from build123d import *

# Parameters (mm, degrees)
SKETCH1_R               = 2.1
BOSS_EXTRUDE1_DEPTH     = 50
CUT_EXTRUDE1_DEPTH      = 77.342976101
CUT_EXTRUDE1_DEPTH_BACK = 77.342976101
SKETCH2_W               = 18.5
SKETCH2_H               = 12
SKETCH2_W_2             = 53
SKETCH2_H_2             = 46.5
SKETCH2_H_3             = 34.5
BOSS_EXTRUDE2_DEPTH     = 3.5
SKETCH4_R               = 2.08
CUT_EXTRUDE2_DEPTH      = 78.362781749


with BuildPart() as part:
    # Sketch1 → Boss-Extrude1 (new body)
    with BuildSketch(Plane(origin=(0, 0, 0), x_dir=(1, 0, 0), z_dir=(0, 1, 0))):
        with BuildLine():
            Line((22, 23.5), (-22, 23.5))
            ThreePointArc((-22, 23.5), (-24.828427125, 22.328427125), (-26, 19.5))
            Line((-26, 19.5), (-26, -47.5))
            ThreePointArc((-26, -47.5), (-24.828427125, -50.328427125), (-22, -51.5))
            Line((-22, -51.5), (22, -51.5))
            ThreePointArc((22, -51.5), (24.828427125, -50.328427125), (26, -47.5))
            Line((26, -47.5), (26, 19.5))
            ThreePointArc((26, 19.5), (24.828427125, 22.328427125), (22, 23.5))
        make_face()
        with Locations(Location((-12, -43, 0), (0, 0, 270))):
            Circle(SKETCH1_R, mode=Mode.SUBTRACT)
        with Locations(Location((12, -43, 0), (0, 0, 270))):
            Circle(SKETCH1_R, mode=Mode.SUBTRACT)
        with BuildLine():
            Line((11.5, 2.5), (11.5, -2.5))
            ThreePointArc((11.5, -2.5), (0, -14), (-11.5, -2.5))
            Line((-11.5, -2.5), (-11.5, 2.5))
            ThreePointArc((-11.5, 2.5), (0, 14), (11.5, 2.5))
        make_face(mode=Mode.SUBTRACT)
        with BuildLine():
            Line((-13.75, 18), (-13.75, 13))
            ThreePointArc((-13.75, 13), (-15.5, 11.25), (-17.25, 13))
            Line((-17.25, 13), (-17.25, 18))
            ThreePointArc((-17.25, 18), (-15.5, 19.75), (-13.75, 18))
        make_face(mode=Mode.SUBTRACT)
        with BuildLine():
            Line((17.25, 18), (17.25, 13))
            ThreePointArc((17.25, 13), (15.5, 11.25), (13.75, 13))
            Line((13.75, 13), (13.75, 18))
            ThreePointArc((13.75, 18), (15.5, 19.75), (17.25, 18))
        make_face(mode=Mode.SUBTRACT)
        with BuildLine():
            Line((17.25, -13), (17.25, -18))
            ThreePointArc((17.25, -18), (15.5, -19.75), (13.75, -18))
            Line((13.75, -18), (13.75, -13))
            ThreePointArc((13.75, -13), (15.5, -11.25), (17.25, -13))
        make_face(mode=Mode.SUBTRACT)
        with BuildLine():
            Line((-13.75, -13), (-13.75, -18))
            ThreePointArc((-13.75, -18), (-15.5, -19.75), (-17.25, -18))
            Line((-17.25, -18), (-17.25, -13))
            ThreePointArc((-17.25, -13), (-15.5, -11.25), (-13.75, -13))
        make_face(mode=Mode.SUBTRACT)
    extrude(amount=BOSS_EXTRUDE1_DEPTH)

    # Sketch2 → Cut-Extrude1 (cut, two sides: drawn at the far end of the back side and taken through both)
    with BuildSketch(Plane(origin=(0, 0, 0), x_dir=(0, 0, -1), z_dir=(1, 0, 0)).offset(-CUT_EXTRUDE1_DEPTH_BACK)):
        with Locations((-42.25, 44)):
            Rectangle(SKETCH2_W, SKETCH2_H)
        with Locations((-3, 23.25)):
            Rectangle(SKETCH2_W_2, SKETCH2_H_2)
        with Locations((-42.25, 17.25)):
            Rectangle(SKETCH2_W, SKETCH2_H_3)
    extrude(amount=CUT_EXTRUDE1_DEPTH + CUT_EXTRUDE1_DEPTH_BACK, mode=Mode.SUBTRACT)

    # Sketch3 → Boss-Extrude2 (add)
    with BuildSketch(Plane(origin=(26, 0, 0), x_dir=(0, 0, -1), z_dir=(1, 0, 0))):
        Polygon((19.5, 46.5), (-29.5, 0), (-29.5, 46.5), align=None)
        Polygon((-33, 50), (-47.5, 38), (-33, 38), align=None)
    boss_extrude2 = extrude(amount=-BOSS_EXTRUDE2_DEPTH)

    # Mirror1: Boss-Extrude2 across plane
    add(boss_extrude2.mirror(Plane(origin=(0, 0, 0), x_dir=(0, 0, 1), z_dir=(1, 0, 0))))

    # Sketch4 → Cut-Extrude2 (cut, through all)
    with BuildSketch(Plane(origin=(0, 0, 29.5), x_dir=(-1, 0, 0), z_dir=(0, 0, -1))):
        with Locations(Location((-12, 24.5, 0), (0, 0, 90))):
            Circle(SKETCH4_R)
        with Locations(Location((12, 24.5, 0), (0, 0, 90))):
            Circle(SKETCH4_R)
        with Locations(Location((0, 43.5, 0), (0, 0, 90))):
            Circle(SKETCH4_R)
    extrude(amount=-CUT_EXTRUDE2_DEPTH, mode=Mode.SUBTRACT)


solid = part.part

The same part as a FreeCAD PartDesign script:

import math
import FreeCAD as App
import Part
import Sketcher
from FreeCAD import Vector
Q = App.Units.Quantity


def add_polygon(sketch, points):
    """Adds a closed chain of lines whose ends are joined by coincident constraints."""
    first, n = sketch.GeometryCount, len(points)
    for a, b in zip(points, points[1:] + points[:1]):
        sketch.addGeometry(Part.LineSegment(App.Vector(*a, 0), App.Vector(*b, 0)), False)
    for i in range(n):
        sketch.addConstraint(Sketcher.Constraint("Coincident", first + i, 2, first + (i + 1) % n, 1))

doc = App.newDocument("Part")
body = doc.addObject("PartDesign::Body", "Body")

sketch1 = body.newObject("Sketcher::SketchObject", "Sketch")
sketch1.AttachmentSupport = (doc.getObject("XZ_Plane"), [""])
sketch1.MapMode = "FlatFace"
sketch1.addGeometry([
    Part.LineSegment(Vector(22, -23.5, 0), Vector(-22, -23.5, 0)),
    Part.ArcOfCircle(Part.Circle(Vector(-22, -19.5, 0), Vector(0, 0, 1), 4), math.radians(180), math.radians(270)),
    Part.LineSegment(Vector(-26, -19.5, 0), Vector(-26, 47.5, 0)),
    Part.ArcOfCircle(Part.Circle(Vector(-22, 47.5, 0), Vector(0, 0, 1), 4), math.radians(90), math.radians(180)),
    Part.LineSegment(Vector(-22, 51.5, 0), Vector(22, 51.5, 0)),
    Part.ArcOfCircle(Part.Circle(Vector(22, 47.5, 0), Vector(0, 0, 1), 4), math.radians(0), math.radians(90)),
    Part.LineSegment(Vector(26, 47.5, 0), Vector(26, -19.5, 0)),
    Part.ArcOfCircle(Part.Circle(Vector(22, -19.5, 0), Vector(0, 0, 1), 4), math.radians(-90), math.radians(0)),
    Part.Circle(Vector(-12, 43, 0), Vector(0, 0, 1), 2.1),
    Part.ArcOfCircle(Part.Circle(Vector(-15.5, 13, 0), Vector(0, 0, 1), 1.75), math.radians(180), math.radians(360)),
    Part.LineSegment(Vector(-13.75, 13, 0), Vector(-13.75, 18, 0)),
    Part.ArcOfCircle(Part.Circle(Vector(-15.5, 18, 0), Vector(0, 0, 1), 1.75), math.radians(0), math.radians(180)),
    Part.LineSegment(Vector(-17.25, 18, 0), Vector(-17.25, 13, 0)),
    Part.Circle(Vector(12, 43, 0), Vector(0, 0, 1), 2.1),
    Part.ArcOfCircle(Part.Circle(Vector(15.5, 13, 0), Vector(0, 0, 1), 1.75), math.radians(180), math.radians(360)),
    Part.LineSegment(Vector(17.25, 13, 0), Vector(17.25, 18, 0)),
    Part.ArcOfCircle(Part.Circle(Vector(15.5, 18, 0), Vector(0, 0, 1), 1.75), math.radians(0), math.radians(180)),
    Part.LineSegment(Vector(13.75, 18, 0), Vector(13.75, 13, 0)),
    Part.ArcOfCircle(Part.Circle(Vector(-15.5, -18, 0), Vector(0, 0, 1), 1.75), math.radians(180), math.radians(360)),
    Part.LineSegment(Vector(-13.75, -18, 0), Vector(-13.75, -13, 0)),
    Part.ArcOfCircle(Part.Circle(Vector(-15.5, -13, 0), Vector(0, 0, 1), 1.75), math.radians(0), math.radians(180)),
    Part.LineSegment(Vector(-17.25, -13, 0), Vector(-17.25, -18, 0)),
    Part.ArcOfCircle(Part.Circle(Vector(0, -2.5, 0), Vector(0, 0, 1), 11.5), math.radians(180), math.radians(360)),
    Part.LineSegment(Vector(11.5, -2.5, 0), Vector(11.5, 2.5, 0)),
    Part.ArcOfCircle(Part.Circle(Vector(0, 2.5, 0), Vector(0, 0, 1), 11.5), math.radians(0), math.radians(180)),
    Part.LineSegment(Vector(-11.5, 2.5, 0), Vector(-11.5, -2.5, 0)),
    Part.ArcOfCircle(Part.Circle(Vector(15.5, -18, 0), Vector(0, 0, 1), 1.75), math.radians(180), math.radians(360)),
    Part.LineSegment(Vector(17.25, -18, 0), Vector(17.25, -13, 0)),
    Part.ArcOfCircle(Part.Circle(Vector(15.5, -13, 0), Vector(0, 0, 1), 1.75), math.radians(0), math.radians(180)),
    Part.LineSegment(Vector(13.75, -13, 0), Vector(13.75, -18, 0)),
], False)
sketch1.addConstraint([
    Sketcher.Constraint("Tangent", 0, 2, 1, 2),
    Sketcher.Constraint("Tangent", 1, 1, 2, 1),
    Sketcher.Constraint("Tangent", 2, 2, 3, 2),
    Sketcher.Constraint("Tangent", 3, 1, 4, 1),
    Sketcher.Constraint("Tangent", 4, 2, 5, 2),
    Sketcher.Constraint("Tangent", 5, 1, 6, 1),
    Sketcher.Constraint("Tangent", 6, 2, 7, 2),
    Sketcher.Constraint("Tangent", 7, 1, 0, 1),
    Sketcher.Constraint("Tangent", 9, 2, 10, 1),
    Sketcher.Constraint("Tangent", 10, 2, 11, 1),
    Sketcher.Constraint("Tangent", 11, 2, 12, 1),
    Sketcher.Constraint("Tangent", 12, 2, 9, 1),
    Sketcher.Constraint("Tangent", 14, 2, 15, 1),
    Sketcher.Constraint("Tangent", 15, 2, 16, 1),
    Sketcher.Constraint("Tangent", 16, 2, 17, 1),
    Sketcher.Constraint("Tangent", 17, 2, 14, 1),
    Sketcher.Constraint("Tangent", 18, 2, 19, 1),
    Sketcher.Constraint("Tangent", 19, 2, 20, 1),
    Sketcher.Constraint("Tangent", 20, 2, 21, 1),
    Sketcher.Constraint("Tangent", 21, 2, 18, 1),
    Sketcher.Constraint("Tangent", 22, 2, 23, 1),
    Sketcher.Constraint("Tangent", 23, 2, 24, 1),
    Sketcher.Constraint("Tangent", 24, 2, 25, 1),
    Sketcher.Constraint("Tangent", 25, 2, 22, 1),
    Sketcher.Constraint("Tangent", 26, 2, 27, 1),
    Sketcher.Constraint("Tangent", 27, 2, 28, 1),
    Sketcher.Constraint("Tangent", 28, 2, 29, 1),
    Sketcher.Constraint("Tangent", 29, 2, 26, 1),
    Sketcher.Constraint("Horizontal", 0),
    Sketcher.Constraint("Vertical", 2),
    Sketcher.Constraint("Horizontal", 4),
    Sketcher.Constraint("Vertical", 6),
    Sketcher.Constraint("Vertical", 10),
    Sketcher.Constraint("Vertical", 12),
    Sketcher.Constraint("Vertical", 15),
    Sketcher.Constraint("Vertical", 17),
    Sketcher.Constraint("Vertical", 19),
    Sketcher.Constraint("Vertical", 21),
    Sketcher.Constraint("Vertical", 23),
    Sketcher.Constraint("Vertical", 25),
    Sketcher.Constraint("Vertical", 27),
    Sketcher.Constraint("Vertical", 29),
    Sketcher.Constraint("Equal", 1, 3),
    Sketcher.Constraint("Equal", 3, 5),
    Sketcher.Constraint("Equal", 5, 7),
    Sketcher.Constraint("Equal", 8, 13),
    Sketcher.Constraint("Equal", 11, 14),
    Sketcher.Constraint("Equal", 16, 18),
    Sketcher.Constraint("Equal", 20, 26),
    Sketcher.Constraint("Symmetric", 16, 3, 18, 3, -1, 1),
    Sketcher.Constraint("Symmetric", 22, 3, 24, 3, -1, 1),
    Sketcher.Constraint("Symmetric", 11, 3, 26, 3, -1, 1),
    Sketcher.Constraint("Symmetric", 8, 3, 13, 3, -2),
    Sketcher.Constraint("Symmetric", 9, 3, 14, 3, -2),
    Sketcher.Constraint("Horizontal", 11, 3, 16, 3),
    Sketcher.Constraint("Horizontal", 20, 3, 28, 3),
    Sketcher.Constraint("Equal", 17, 19),
    Sketcher.Constraint("Equal", 21, 23),
    Sketcher.Constraint("Radius", 1, Q("4 mm")),
    Sketcher.Constraint("Diameter", 8, Q("4.2 mm")),
    Sketcher.Constraint("Radius", 22, Q("11.5 mm")),
    Sketcher.Constraint("DistanceX", 0, 2, 0, 1, Q("44 mm")),
    Sketcher.Constraint("DistanceY", 2, 1, 2, 2, Q("67 mm")),
    Sketcher.Constraint("DistanceY", 10, 1, 10, 2, Q("5 mm")),
    Sketcher.Constraint("Radius", 9, Q("1.75 mm")),
    Sketcher.Constraint("DistanceX", 1, 3, -1, 1, Q("22 mm")),
    Sketcher.Constraint("DistanceX", 8, 3, -1, 1, Q("12 mm")),
    Sketcher.Constraint("DistanceY", -1, 1, 8, 3, Q("43 mm")),
    Sketcher.Constraint("DistanceY", -1, 1, 9, 3, Q("13 mm")),
    Sketcher.Constraint("DistanceX", 9, 3, 14, 3, Q("31 mm")),
    Sketcher.Constraint("DistanceY", 0, 2, 22, 3, Q("21 mm")),
])
pad1 = body.newObject("PartDesign::Pad", "Pad")
pad1.Profile = sketch1
pad1.Length = 50
pad1.Reversed = True

sketch2 = body.newObject("Sketcher::SketchObject", "Sketch001")
sketch2.AttachmentSupport = (doc.getObject("YZ_Plane"), [""])
sketch2.MapMode = "FlatFace"
add_polygon(sketch2, [(50, 51.5), (38, 51.5), (38, 33), (50, 33)])
add_polygon(sketch2, [(46.5, 29.5), (0, 29.5), (0, -23.5), (46.5, -23.5)])
add_polygon(sketch2, [(34.5, 51.5), (0, 51.5), (0, 33), (34.5, 33)])
sketch2.addConstraint([
    Sketcher.Constraint("Horizontal", 0),
    Sketcher.Constraint("Vertical", 1),
    Sketcher.Constraint("Horizontal", 2),
    Sketcher.Constraint("Vertical", 3),
    Sketcher.Constraint("Horizontal", 4),
    Sketcher.Constraint("Vertical", 5),
    Sketcher.Constraint("Horizontal", 6),
    Sketcher.Constraint("Vertical", 7),
    Sketcher.Constraint("Horizontal", 8),
    Sketcher.Constraint("Vertical", 9),
    Sketcher.Constraint("Horizontal", 10),
    Sketcher.Constraint("Vertical", 11),
    Sketcher.Constraint("PointOnObject", 4, 2, -2),
    Sketcher.Constraint("PointOnObject", 8, 2, -2),
    Sketcher.Constraint("Horizontal", 3, 2, 8, 2),
    Sketcher.Constraint("Horizontal", 2, 2, 9, 2),
    Sketcher.Constraint("DistanceX", 0, 2, 0, 1, Q("12 mm")),
    Sketcher.Constraint("DistanceY", 5, 2, 5, 1, Q("53 mm")),
    Sketcher.Constraint("DistanceX", 4, 2, 4, 1, Q("46.5 mm")),
    Sketcher.Constraint("DistanceX", 8, 2, 8, 1, Q("34.5 mm")),
    Sketcher.Constraint("DistanceY", 1, 2, 1, 1, Q("18.5 mm")),
    Sketcher.Constraint("DistanceX", -1, 1, 0, 2, Q("38 mm")),
    Sketcher.Constraint("DistanceY", -1, 1, 1, 2, Q("33 mm")),
    Sketcher.Constraint("DistanceY", 4, 2, 0, 2, Q("22 mm")),
])
pocket1 = body.newObject("PartDesign::Pocket", "Pocket")
pocket1.Profile = sketch2
pocket1.Type = "ThroughAll"
pocket1.Midplane = True

sketch3 = body.newObject("Sketcher::SketchObject", "Sketch002")
sketch3.AttachmentSupport = (doc.getObject("YZ_Plane"), [""])
sketch3.MapMode = "FlatFace"
sketch3.AttachmentOffset = App.Placement(Vector(0, 0, 26), App.Rotation())
add_polygon(sketch3, [(0, 29.5), (46.5, -19.5), (46.5, 29.5)])
add_polygon(sketch3, [(50, 33), (38, 47.5), (38, 33)])
sketch3.addConstraint([
    Sketcher.Constraint("Vertical", 1),
    Sketcher.Constraint("Horizontal", 2),
    Sketcher.Constraint("Vertical", 4),
    Sketcher.Constraint("Horizontal", 5),
    Sketcher.Constraint("PointOnObject", 2, 2, -2),
    Sketcher.Constraint("DistanceX", 5, 1, 5, 2, Q("12 mm")),
    Sketcher.Constraint("DistanceY", 1, 1, 1, 2, Q("49 mm")),
    Sketcher.Constraint("DistanceX", 2, 2, 2, 1, Q("46.5 mm")),
    Sketcher.Constraint("DistanceY", 4, 2, 4, 1, Q("14.5 mm")),
    Sketcher.Constraint("DistanceX", -1, 1, 3, 2, Q("38 mm")),
    Sketcher.Constraint("DistanceY", -1, 1, 4, 2, Q("33 mm")),
    Sketcher.Constraint("DistanceY", 1, 2, 3, 2, Q("18 mm")),
])
pad2 = body.newObject("PartDesign::Pad", "Pad001")
pad2.Profile = sketch3
pad2.Length = 3.5
pad2.Reversed = True
doc.recompute()

mirrored = body.newObject("PartDesign::Mirrored", "Mirrored")
mirrored.Originals = [pad2]
mirrored.MirrorPlane = (doc.getObject("YZ_Plane"), [""])
body.Tip = mirrored

sketch4 = body.newObject("Sketcher::SketchObject", "Sketch003")
sketch4.AttachmentSupport = (doc.getObject("XY_Plane"), [""])
sketch4.MapMode = "FlatFace"
sketch4.AttachmentOffset = App.Placement(Vector(0, 0, 29.5), App.Rotation())
sketch4.addGeometry([
    Part.Circle(Vector(12, 24.5, 0), Vector(0, 0, 1), 2.08),
    Part.Circle(Vector(-12, 24.5, 0), Vector(0, 0, 1), 2.08),
    Part.Circle(Vector(0, 43.5, 0), Vector(0, 0, 1), 2.08),
], False)
sketch4.addConstraint([
    Sketcher.Constraint("Equal", 0, 1),
    Sketcher.Constraint("Equal", 1, 2),
    Sketcher.Constraint("Symmetric", 0, 3, 1, 3, -2),
    Sketcher.Constraint("PointOnObject", 2, 3, -2),
    Sketcher.Constraint("Diameter", 0, Q("4.16 mm")),
    Sketcher.Constraint("DistanceX", -1, 1, 0, 3, Q("12 mm")),
    Sketcher.Constraint("DistanceY", 0, 3, 2, 3, Q("19 mm")),
    Sketcher.Constraint("DistanceY", -1, 1, 0, 3, Q("24.5 mm")),
])
pocket2 = body.newObject("PartDesign::Pocket", "Pocket001")
pocket2.Profile = sketch4
pocket2.Type = "ThroughAll"
pocket2.Reversed = True

doc.recompute()
